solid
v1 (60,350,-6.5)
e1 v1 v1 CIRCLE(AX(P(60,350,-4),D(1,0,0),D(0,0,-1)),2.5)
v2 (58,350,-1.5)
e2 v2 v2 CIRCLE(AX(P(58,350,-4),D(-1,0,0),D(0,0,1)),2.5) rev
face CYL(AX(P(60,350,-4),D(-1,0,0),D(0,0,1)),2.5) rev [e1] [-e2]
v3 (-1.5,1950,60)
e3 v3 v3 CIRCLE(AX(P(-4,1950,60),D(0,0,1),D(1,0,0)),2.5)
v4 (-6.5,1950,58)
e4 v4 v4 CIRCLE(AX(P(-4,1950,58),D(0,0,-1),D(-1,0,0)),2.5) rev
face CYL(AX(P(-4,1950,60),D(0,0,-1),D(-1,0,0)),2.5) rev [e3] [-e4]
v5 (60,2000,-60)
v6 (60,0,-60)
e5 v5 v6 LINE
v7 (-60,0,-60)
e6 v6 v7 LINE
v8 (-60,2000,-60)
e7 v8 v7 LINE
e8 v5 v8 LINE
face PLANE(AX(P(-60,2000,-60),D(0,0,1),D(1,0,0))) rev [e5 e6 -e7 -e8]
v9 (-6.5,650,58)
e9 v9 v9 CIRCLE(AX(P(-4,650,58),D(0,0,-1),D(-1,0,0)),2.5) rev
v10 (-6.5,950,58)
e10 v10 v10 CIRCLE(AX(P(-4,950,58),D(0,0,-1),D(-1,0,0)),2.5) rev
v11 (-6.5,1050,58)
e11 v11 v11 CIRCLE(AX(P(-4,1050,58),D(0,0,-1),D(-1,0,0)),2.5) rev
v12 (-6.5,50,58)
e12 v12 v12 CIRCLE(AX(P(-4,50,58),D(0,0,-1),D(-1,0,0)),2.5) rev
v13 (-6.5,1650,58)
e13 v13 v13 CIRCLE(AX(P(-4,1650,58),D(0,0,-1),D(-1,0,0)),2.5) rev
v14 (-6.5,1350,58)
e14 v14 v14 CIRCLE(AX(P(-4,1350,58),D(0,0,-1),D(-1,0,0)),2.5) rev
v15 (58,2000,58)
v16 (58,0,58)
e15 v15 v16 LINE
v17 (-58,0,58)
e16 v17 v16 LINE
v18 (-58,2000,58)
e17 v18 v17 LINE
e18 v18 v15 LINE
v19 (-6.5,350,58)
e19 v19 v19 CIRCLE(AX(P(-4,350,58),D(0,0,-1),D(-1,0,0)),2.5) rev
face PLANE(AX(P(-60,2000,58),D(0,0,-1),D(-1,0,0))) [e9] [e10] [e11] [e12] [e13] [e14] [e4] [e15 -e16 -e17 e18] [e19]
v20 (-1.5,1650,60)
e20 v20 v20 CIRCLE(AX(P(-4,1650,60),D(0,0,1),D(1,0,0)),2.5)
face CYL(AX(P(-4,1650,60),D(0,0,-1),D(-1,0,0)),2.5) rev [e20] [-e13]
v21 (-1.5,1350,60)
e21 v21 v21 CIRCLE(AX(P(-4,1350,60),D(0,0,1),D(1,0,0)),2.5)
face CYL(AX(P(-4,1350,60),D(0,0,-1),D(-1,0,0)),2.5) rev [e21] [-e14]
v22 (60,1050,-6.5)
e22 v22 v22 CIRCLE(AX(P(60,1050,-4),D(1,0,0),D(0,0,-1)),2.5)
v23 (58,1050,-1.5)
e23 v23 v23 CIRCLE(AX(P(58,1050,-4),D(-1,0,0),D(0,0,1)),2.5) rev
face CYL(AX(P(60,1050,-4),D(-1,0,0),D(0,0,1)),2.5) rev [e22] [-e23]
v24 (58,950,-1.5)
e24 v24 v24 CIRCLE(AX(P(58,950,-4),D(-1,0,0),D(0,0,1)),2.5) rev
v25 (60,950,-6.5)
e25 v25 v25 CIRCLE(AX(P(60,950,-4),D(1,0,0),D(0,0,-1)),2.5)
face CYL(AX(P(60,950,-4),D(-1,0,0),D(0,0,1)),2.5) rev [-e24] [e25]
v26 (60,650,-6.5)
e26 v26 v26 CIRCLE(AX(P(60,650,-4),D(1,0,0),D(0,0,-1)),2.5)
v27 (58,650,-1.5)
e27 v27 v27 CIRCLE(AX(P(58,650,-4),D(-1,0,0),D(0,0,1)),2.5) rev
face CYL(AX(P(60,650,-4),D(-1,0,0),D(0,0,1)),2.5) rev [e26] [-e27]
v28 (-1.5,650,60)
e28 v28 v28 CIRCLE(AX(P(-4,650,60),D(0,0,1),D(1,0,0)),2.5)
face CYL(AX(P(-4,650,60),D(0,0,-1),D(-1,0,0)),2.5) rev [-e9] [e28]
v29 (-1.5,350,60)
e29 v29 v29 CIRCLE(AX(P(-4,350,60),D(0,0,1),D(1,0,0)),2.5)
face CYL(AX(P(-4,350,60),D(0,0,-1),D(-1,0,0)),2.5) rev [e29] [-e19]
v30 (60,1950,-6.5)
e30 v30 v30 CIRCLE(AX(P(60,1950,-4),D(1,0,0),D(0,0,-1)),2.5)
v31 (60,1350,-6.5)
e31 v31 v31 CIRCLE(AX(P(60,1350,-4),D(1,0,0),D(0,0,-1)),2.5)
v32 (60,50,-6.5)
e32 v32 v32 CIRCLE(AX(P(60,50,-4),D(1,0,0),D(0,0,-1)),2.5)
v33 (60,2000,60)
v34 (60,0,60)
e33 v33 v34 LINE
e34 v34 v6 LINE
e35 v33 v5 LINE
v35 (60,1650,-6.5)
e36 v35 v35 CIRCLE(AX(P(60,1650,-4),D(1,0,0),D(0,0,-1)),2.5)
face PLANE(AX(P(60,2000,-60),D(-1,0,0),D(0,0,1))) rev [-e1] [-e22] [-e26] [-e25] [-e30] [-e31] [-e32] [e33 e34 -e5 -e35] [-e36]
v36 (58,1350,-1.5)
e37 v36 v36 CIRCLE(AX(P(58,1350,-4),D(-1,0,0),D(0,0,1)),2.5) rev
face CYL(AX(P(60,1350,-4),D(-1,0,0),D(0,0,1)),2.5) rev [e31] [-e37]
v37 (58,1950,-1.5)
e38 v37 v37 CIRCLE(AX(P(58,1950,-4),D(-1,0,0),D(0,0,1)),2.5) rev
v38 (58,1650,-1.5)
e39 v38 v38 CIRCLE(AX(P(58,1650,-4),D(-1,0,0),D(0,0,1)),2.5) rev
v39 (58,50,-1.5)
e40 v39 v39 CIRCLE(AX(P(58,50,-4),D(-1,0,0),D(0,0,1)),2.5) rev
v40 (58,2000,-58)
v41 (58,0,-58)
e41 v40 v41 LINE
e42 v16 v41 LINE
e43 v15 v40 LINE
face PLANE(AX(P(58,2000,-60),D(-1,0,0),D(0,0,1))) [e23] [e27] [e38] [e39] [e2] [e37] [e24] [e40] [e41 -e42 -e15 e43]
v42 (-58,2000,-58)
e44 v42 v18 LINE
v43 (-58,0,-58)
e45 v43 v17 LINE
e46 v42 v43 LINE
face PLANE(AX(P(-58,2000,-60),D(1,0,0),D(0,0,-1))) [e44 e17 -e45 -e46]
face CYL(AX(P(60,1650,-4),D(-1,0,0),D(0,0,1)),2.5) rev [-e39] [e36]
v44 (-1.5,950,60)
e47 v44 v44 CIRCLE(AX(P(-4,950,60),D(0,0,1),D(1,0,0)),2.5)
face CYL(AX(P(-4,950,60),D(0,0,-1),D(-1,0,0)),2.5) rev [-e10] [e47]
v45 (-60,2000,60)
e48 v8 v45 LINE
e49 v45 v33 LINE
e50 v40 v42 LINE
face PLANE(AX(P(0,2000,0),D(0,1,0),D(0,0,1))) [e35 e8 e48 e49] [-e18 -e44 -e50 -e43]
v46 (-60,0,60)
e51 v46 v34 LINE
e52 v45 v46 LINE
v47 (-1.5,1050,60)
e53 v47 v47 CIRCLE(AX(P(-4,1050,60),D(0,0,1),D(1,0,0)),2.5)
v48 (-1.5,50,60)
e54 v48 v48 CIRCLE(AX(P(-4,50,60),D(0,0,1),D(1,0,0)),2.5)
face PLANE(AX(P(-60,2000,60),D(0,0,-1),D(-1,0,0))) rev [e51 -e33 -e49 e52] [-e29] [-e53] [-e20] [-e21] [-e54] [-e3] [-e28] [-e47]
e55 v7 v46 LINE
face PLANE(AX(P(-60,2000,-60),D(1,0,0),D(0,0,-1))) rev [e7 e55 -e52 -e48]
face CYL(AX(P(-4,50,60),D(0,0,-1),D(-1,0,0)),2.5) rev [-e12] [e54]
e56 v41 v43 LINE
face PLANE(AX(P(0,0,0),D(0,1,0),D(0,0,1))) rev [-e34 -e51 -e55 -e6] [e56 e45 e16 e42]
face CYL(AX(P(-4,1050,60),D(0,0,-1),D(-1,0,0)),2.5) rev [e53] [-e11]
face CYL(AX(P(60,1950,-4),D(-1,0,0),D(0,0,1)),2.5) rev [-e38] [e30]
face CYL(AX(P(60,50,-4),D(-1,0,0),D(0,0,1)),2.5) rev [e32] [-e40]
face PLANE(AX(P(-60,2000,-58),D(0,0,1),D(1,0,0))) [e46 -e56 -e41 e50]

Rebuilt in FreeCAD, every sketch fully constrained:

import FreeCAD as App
import Part
import Sketcher

V = App.Vector
Q = App.Units.Quantity

doc = App.newDocument("Part")
body = doc.addObject("PartDesign::Body", "Body")

# Sketch on XZ plane
sketch1 = doc.addObject("Sketcher::SketchObject", "Sketch")
body.addObject(sketch1)
sketch1.AttachmentSupport = (doc.XZ_Plane, [""])
sketch1.MapMode = "FlatFace"
sketch1.addGeometry(Part.LineSegment(V(-60, -60, 0), V(-60, 60, 0)), False)
sketch1.addGeometry(Part.LineSegment(V(-60, 60, 0), V(60, 60, 0)), False)
sketch1.addGeometry(Part.LineSegment(V(60, 60, 0), V(60, -60, 0)), False)
sketch1.addGeometry(Part.LineSegment(V(60, -60, 0), V(-60, -60, 0)), False)
sketch1.addGeometry(Part.LineSegment(V(58, 58, 0), V(-58, 58, 0)), False)
sketch1.addGeometry(Part.LineSegment(V(-58, 58, 0), V(-58, -58, 0)), False)
sketch1.addGeometry(Part.LineSegment(V(-58, -58, 0), V(58, -58, 0)), False)
sketch1.addGeometry(Part.LineSegment(V(58, -58, 0), V(58, 58, 0)), False)
sketch1.addConstraint(Sketcher.Constraint("Coincident", 0, 2, 1, 1))
sketch1.addConstraint(Sketcher.Constraint("Coincident", 1, 2, 2, 1))
sketch1.addConstraint(Sketcher.Constraint("Coincident", 2, 2, 3, 1))
sketch1.addConstraint(Sketcher.Constraint("Coincident", 3, 2, 0, 1))
sketch1.addConstraint(Sketcher.Constraint("Coincident", 4, 2, 5, 1))
sketch1.addConstraint(Sketcher.Constraint("Coincident", 5, 2, 6, 1))
sketch1.addConstraint(Sketcher.Constraint("Coincident", 6, 2, 7, 1))
sketch1.addConstraint(Sketcher.Constraint("Coincident", 7, 2, 4, 1))
sketch1.addConstraint(Sketcher.Constraint("Vertical", 0))
sketch1.addConstraint(Sketcher.Constraint("Horizontal", 1))
sketch1.addConstraint(Sketcher.Constraint("Vertical", 2))
sketch1.addConstraint(Sketcher.Constraint("Horizontal", 3))
sketch1.addConstraint(Sketcher.Constraint("Horizontal", 4))
sketch1.addConstraint(Sketcher.Constraint("Vertical", 5))
sketch1.addConstraint(Sketcher.Constraint("Horizontal", 6))
sketch1.addConstraint(Sketcher.Constraint("Vertical", 7))
sketch1.addConstraint(Sketcher.Constraint("Symmetric", 0, 2, 2, 2, -1, 1))
sketch1.addConstraint(Sketcher.Constraint("Symmetric", 4, 2, 6, 2, -1, 1))
sketch1.addConstraint(Sketcher.Constraint("Equal", 3, 0))
sketch1.addConstraint(Sketcher.Constraint("Equal", 6, 5))
sketch1.addConstraint(Sketcher.Constraint("DistanceX", 1, 1, 1, 2, Q("120 mm")))
sketch1.addConstraint(Sketcher.Constraint("DistanceX", 4, 2, 4, 1, Q("116 mm")))
pad1 = doc.addObject("PartDesign::Pad", "Pad")
body.addObject(pad1)
pad1.Profile = sketch1
pad1.Length = 2000
pad1.Reversed = True

# Sketch on YZ plane
sketch2 = doc.addObject("Sketcher::SketchObject", "Sketch001")
body.addObject(sketch2)
sketch2.AttachmentSupport = (doc.YZ_Plane, [""])
sketch2.MapMode = "FlatFace"
sketch2.addGeometry(Part.Circle(V(50, -4, 0), V(0, 0, 1), 2.5), False)
sketch2.addGeometry(Part.Circle(V(350, -4, 0), V(0, 0, 1), 2.5), False)
sketch2.addGeometry(Part.Circle(V(650, -4, 0), V(0, 0, 1), 2.5), False)
sketch2.addGeometry(Part.Circle(V(950, -4, 0), V(0, 0, 1), 2.5), False)
sketch2.addGeometry(Part.Circle(V(1950, -4, 0), V(0, 0, 1), 2.5), False)
sketch2.addGeometry(Part.Circle(V(1650, -4, 0), V(0, 0, 1), 2.5), False)
sketch2.addGeometry(Part.Circle(V(1350, -4, 0), V(0, 0, 1), 2.5), False)
sketch2.addGeometry(Part.Circle(V(1050, -4, 0), V(0, 0, 1), 2.5), False)
sketch2.addConstraint(Sketcher.Constraint("Equal", 0, 1))
sketch2.addConstraint(Sketcher.Constraint("Equal", 1, 2))
sketch2.addConstraint(Sketcher.Constraint("Equal", 2, 3))
sketch2.addConstraint(Sketcher.Constraint("Equal", 3, 4))
sketch2.addConstraint(Sketcher.Constraint("Equal", 4, 5))
sketch2.addConstraint(Sketcher.Constraint("Equal", 5, 6))
sketch2.addConstraint(Sketcher.Constraint("Equal", 6, 7))
sketch2.addConstraint(Sketcher.Constraint("Horizontal", 0, 3, 1, 3))
sketch2.addConstraint(Sketcher.Constraint("Horizontal", 1, 3, 2, 3))
sketch2.addConstraint(Sketcher.Constraint("Horizontal", 2, 3, 3, 3))
sketch2.addConstraint(Sketcher.Constraint("Horizontal", 3, 3, 4, 3))
sketch2.addConstraint(Sketcher.Constraint("Horizontal", 4, 3, 5, 3))
sketch2.addConstraint(Sketcher.Constraint("Horizontal", 5, 3, 6, 3))
sketch2.addConstraint(Sketcher.Constraint("Horizontal", 6, 3, 7, 3))
sketch2.addConstraint(Sketcher.Constraint("Diameter", 0, Q("5 mm")))
sketch2.addConstraint(Sketcher.Constraint("DistanceX", -1, 1, 0, 3, Q("50 mm")))
sketch2.addConstraint(Sketcher.Constraint("DistanceY", 0, 3, -1, 1, Q("4 mm")))
sketch2.addConstraint(Sketcher.Constraint("DistanceX", -1, 1, 1, 3, Q("350 mm")))
sketch2.addConstraint(Sketcher.Constraint("DistanceX", -1, 1, 2, 3, Q("650 mm")))
sketch2.addConstraint(Sketcher.Constraint("DistanceX", -1, 1, 3, 3, Q("950 mm")))
sketch2.addConstraint(Sketcher.Constraint("DistanceX", -1, 1, 4, 3, Q("1950 mm")))
sketch2.addConstraint(Sketcher.Constraint("DistanceX", -1, 1, 5, 3, Q("1650 mm")))
sketch2.addConstraint(Sketcher.Constraint("DistanceX", -1, 1, 6, 3, Q("1350 mm")))
sketch2.addConstraint(Sketcher.Constraint("DistanceX", -1, 1, 7, 3, Q("1050 mm")))
pocket1 = doc.addObject("PartDesign::Pocket", "Pocket")
body.addObject(pocket1)
pocket1.Profile = sketch2
pocket1.Type = "ThroughAll"
pocket1.Reversed = True

# Sketch on XY plane
sketch3 = doc.addObject("Sketcher::SketchObject", "Sketch002")
body.addObject(sketch3)
sketch3.AttachmentSupport = (doc.XY_Plane, [""])
sketch3.MapMode = "FlatFace"
sketch3.addGeometry(Part.Circle(V(-4, 50, 0), V(0, 0, 1), 2.5), False)
sketch3.addGeometry(Part.Circle(V(-4, 350, 0), V(0, 0, 1), 2.5), False)
sketch3.addGeometry(Part.Circle(V(-4, 650, 0), V(0, 0, 1), 2.5), False)
sketch3.addGeometry(Part.Circle(V(-4, 950, 0), V(0, 0, 1), 2.5), False)
sketch3.addGeometry(Part.Circle(V(-4, 1950, 0), V(0, 0, 1), 2.5), False)
sketch3.addGeometry(Part.Circle(V(-4, 1650, 0), V(0, 0, 1), 2.5), False)
sketch3.addGeometry(Part.Circle(V(-4, 1350, 0), V(0, 0, 1), 2.5), False)
sketch3.addGeometry(Part.Circle(V(-4, 1050, 0), V(0, 0, 1), 2.5), False)
sketch3.addConstraint(Sketcher.Constraint("Equal", 0, 1))
sketch3.addConstraint(Sketcher.Constraint("Equal", 1, 2))
sketch3.addConstraint(Sketcher.Constraint("Equal", 2, 3))
sketch3.addConstraint(Sketcher.Constraint("Equal", 3, 4))
sketch3.addConstraint(Sketcher.Constraint("Equal", 4, 5))
sketch3.addConstraint(Sketcher.Constraint("Equal", 5, 6))
sketch3.addConstraint(Sketcher.Constraint("Equal", 6, 7))
sketch3.addConstraint(Sketcher.Constraint("Vertical", 0, 3, 1, 3))
sketch3.addConstraint(Sketcher.Constraint("Vertical", 1, 3, 2, 3))
sketch3.addConstraint(Sketcher.Constraint("Vertical", 2, 3, 3, 3))
sketch3.addConstraint(Sketcher.Constraint("Vertical", 3, 3, 4, 3))
sketch3.addConstraint(Sketcher.Constraint("Vertical", 4, 3, 5, 3))
sketch3.addConstraint(Sketcher.Constraint("Vertical", 5, 3, 6, 3))
sketch3.addConstraint(Sketcher.Constraint("Vertical", 6, 3, 7, 3))
sketch3.addConstraint(Sketcher.Constraint("Diameter", 0, Q("5 mm")))
sketch3.addConstraint(Sketcher.Constraint("DistanceX", 0, 3, -1, 1, Q("4 mm")))
sketch3.addConstraint(Sketcher.Constraint("DistanceY", -1, 1, 0, 3, Q("50 mm")))
sketch3.addConstraint(Sketcher.Constraint("DistanceY", -1, 1, 1, 3, Q("350 mm")))
sketch3.addConstraint(Sketcher.Constraint("DistanceY", -1, 1, 2, 3, Q("650 mm")))
sketch3.addConstraint(Sketcher.Constraint("DistanceY", -1, 1, 3, 3, Q("950 mm")))
sketch3.addConstraint(Sketcher.Constraint("DistanceY", -1, 1, 4, 3, Q("1950 mm")))
sketch3.addConstraint(Sketcher.Constraint("DistanceY", -1, 1, 5, 3, Q("1650 mm")))
sketch3.addConstraint(Sketcher.Constraint("DistanceY", -1, 1, 6, 3, Q("1350 mm")))
sketch3.addConstraint(Sketcher.Constraint("DistanceY", -1, 1, 7, 3, Q("1050 mm")))
pocket2 = doc.addObject("PartDesign::Pocket", "Pocket001")
body.addObject(pocket2)
pocket2.Profile = sketch3
pocket2.Type = "ThroughAll"
pocket2.Reversed = True

doc.recompute()
